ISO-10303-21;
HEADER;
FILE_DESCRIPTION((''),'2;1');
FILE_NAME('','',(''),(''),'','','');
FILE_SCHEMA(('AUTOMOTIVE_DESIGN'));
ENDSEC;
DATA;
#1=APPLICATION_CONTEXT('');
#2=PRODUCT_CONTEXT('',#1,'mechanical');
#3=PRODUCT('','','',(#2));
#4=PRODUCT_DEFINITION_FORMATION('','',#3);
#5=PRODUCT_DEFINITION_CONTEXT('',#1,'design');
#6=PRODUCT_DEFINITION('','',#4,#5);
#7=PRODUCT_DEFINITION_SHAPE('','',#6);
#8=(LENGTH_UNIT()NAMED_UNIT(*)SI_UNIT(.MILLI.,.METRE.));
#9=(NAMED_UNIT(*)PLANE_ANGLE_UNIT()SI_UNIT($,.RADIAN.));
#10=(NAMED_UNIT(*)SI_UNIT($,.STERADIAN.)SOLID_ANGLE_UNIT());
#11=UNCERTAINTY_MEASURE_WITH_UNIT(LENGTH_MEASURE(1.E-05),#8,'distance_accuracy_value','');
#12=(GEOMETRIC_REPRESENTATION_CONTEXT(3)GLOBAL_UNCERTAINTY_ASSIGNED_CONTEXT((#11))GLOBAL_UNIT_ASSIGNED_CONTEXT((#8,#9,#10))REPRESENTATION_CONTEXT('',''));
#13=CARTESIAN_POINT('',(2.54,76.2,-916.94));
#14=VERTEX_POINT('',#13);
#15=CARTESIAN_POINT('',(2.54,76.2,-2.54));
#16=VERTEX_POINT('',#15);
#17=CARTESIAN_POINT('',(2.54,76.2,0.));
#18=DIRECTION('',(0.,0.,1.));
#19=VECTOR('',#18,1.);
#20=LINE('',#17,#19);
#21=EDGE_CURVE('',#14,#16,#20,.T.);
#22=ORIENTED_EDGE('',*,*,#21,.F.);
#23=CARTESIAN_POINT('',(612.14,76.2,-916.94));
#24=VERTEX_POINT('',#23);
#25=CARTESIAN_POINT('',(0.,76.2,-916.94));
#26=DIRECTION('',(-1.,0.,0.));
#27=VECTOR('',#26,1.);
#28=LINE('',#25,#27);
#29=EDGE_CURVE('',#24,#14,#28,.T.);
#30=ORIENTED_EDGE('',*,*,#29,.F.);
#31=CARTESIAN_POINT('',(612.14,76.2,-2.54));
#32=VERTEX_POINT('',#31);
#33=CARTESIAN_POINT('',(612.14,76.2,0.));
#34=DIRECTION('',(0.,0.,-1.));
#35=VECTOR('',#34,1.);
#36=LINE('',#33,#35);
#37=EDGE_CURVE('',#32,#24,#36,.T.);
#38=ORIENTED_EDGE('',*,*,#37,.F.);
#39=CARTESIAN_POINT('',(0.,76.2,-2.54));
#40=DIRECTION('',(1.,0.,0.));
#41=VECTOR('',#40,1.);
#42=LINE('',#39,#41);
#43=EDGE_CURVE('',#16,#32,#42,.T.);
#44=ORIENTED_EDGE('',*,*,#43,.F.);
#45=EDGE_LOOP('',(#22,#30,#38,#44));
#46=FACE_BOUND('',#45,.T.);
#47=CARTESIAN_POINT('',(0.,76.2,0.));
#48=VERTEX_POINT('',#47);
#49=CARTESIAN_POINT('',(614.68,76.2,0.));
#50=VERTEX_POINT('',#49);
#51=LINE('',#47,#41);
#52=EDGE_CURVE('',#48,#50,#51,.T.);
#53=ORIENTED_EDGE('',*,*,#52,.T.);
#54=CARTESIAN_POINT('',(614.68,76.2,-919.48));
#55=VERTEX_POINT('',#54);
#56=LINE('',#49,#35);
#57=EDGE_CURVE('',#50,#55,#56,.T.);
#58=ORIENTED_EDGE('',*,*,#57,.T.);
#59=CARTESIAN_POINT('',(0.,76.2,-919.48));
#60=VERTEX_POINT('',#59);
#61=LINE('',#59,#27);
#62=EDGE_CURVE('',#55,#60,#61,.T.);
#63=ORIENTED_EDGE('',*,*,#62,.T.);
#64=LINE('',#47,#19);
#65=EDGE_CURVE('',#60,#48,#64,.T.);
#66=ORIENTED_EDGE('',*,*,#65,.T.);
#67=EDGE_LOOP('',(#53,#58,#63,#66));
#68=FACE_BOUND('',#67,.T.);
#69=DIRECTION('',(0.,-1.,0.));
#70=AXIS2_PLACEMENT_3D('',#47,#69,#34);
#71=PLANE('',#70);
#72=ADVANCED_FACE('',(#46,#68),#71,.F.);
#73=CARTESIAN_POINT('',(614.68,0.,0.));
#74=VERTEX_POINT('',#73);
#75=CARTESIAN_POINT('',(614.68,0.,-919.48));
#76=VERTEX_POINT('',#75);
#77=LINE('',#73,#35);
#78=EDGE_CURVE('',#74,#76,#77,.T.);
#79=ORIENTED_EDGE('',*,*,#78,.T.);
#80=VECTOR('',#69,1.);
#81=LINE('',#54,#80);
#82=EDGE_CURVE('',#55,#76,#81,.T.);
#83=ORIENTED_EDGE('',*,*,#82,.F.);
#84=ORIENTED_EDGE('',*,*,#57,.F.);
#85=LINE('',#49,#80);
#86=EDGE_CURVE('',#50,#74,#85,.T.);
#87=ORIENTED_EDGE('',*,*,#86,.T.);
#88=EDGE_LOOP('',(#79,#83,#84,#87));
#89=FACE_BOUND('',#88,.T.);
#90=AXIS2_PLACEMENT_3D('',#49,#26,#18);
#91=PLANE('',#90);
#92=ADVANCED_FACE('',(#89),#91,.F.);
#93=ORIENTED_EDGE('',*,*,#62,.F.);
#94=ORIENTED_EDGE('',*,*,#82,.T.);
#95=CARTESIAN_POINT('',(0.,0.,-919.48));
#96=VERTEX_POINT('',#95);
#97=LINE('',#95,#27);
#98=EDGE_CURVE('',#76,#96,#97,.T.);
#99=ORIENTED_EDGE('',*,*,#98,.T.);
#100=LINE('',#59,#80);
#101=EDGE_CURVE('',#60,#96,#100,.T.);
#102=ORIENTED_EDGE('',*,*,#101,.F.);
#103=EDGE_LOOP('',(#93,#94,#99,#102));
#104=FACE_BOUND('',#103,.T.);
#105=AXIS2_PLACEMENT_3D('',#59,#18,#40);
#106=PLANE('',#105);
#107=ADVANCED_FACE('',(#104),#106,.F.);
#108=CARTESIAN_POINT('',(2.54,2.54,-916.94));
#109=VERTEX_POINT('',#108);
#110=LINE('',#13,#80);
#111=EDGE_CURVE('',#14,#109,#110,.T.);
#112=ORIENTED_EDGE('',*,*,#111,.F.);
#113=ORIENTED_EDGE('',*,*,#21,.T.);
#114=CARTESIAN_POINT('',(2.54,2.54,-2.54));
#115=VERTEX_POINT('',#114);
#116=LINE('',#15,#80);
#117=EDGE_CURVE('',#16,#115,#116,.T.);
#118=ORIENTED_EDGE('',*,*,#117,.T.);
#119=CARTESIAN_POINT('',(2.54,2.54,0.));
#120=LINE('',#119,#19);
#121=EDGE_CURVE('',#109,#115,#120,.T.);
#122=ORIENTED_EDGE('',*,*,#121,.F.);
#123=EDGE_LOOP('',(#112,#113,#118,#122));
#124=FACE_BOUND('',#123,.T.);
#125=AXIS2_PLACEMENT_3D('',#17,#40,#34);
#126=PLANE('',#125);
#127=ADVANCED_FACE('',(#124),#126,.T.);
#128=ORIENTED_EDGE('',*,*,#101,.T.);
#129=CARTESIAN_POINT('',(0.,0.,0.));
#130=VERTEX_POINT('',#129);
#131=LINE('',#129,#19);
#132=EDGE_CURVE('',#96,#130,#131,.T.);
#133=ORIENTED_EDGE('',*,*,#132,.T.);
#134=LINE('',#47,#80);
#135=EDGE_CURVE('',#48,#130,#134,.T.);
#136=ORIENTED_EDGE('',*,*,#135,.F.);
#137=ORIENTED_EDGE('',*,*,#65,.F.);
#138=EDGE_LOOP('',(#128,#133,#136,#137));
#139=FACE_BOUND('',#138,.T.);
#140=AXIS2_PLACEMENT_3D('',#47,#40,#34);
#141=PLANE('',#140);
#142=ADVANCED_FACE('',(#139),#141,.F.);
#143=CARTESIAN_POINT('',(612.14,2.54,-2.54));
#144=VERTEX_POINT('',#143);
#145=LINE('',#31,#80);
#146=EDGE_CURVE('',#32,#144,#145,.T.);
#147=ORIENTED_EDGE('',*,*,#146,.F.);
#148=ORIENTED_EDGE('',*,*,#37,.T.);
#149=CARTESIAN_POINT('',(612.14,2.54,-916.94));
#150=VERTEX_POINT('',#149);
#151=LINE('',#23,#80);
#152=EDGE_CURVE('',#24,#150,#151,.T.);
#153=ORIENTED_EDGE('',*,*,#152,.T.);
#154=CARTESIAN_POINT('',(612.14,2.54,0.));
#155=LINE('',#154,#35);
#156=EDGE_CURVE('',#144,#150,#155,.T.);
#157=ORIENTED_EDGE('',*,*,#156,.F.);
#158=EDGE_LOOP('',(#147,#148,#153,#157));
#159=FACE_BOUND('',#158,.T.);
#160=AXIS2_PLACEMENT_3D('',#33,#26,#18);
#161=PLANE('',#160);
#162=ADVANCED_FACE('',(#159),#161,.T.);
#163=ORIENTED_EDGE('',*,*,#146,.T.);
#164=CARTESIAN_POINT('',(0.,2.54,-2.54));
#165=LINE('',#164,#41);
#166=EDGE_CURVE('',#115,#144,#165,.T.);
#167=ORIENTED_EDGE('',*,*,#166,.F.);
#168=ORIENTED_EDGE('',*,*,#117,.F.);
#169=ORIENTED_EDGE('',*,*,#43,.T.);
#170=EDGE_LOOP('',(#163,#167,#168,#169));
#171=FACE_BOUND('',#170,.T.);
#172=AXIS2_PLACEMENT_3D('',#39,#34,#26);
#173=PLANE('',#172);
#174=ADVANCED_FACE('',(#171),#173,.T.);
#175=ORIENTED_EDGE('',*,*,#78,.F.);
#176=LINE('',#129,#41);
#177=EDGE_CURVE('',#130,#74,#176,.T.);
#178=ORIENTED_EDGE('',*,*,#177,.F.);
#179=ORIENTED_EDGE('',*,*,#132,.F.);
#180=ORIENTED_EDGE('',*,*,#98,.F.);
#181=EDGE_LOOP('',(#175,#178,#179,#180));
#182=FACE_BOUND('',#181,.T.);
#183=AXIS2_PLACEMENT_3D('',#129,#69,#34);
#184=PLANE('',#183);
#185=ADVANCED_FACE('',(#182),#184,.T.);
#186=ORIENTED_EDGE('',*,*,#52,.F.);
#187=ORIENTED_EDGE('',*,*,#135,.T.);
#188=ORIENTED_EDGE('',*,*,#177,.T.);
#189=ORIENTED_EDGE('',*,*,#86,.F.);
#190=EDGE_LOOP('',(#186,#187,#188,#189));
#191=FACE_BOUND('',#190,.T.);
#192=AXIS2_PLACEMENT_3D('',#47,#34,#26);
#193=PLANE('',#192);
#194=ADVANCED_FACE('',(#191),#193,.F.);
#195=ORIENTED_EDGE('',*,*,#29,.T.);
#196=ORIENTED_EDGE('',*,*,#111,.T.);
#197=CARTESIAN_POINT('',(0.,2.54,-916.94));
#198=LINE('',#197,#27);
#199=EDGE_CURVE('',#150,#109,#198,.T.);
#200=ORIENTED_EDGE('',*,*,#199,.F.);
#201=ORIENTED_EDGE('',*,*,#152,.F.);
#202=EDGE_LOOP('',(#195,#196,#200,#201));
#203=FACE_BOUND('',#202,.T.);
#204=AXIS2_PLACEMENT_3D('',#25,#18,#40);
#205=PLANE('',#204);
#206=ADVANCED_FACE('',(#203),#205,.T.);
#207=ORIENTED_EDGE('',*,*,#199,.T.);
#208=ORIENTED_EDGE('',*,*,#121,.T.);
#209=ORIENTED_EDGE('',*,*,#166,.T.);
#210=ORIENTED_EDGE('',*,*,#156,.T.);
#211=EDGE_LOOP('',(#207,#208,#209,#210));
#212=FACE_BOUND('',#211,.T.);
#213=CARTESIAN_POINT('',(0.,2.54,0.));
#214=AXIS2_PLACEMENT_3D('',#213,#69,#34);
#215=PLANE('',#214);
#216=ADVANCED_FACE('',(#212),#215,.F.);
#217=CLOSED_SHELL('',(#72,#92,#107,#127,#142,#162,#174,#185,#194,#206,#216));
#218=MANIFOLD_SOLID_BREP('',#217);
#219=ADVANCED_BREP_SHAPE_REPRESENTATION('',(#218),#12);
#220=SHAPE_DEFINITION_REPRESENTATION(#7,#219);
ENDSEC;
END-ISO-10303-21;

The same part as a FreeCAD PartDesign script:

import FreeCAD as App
import Part
import Sketcher
Q = App.Units.Quantity


def faces_at(feature, points):
    """Names of the faces that lie closest to the given points."""
    faces = feature.Shape.Faces
    near = lambda p: min(range(len(faces)), key=lambda i: faces[i].distToShape(Part.Vertex(*p))[0])
    return sorted({f"Face{near(p) + 1}" for p in points})

doc = App.newDocument("Part")
params = doc.addObject("Spreadsheet::Sheet", "Params")
for row, (alias, value) in enumerate([
    ("sketch1_width", "24.2 in"),
    ("sketch1_height", "36.2 in"),
    ("pad1_length", "3 in"),
    ("thickness_wall", "0.1 in"),
], start=1):
    params.set(f"A{row}", alias)
    params.set(f"B{row}", "=" + value)
    params.setAlias(f"B{row}", alias)

body = doc.addObject("PartDesign::Body", "Body")

sketch1 = body.newObject("Sketcher::SketchObject", "Sketch")
sketch1.AttachmentSupport = (doc.getObject("XZ_Plane"), [""])
sketch1.MapMode = "FlatFace"
sketch1.addGeometry(Part.LineSegment(App.Vector(0, -919, 0), App.Vector(0, 0, 0)), False)
sketch1.addGeometry(Part.LineSegment(App.Vector(0, 0, 0), App.Vector(615, 0, 0)), False)
sketch1.addGeometry(Part.LineSegment(App.Vector(615, 0, 0), App.Vector(615, -919, 0)), False)
sketch1.addGeometry(Part.LineSegment(App.Vector(615, -919, 0), App.Vector(0, -919, 0)), False)
sketch1.addConstraint(Sketcher.Constraint("Coincident", 0, 2, 1, 1))
sketch1.addConstraint(Sketcher.Constraint("Coincident", 1, 2, 2, 1))
sketch1.addConstraint(Sketcher.Constraint("Coincident", 2, 2, 3, 1))
sketch1.addConstraint(Sketcher.Constraint("Coincident", 3, 2, 0, 1))
sketch1.addConstraint(Sketcher.Constraint("Vertical", 0))
sketch1.addConstraint(Sketcher.Constraint("Horizontal", 1))
sketch1.addConstraint(Sketcher.Constraint("Vertical", 2))
sketch1.addConstraint(Sketcher.Constraint("Horizontal", 3))
sketch1.addConstraint(Sketcher.Constraint("Coincident", 0, 2, -1, 1))
sketch1.addConstraint(Sketcher.Constraint("DistanceX", 1, 1, 1, 2, Q("24.2 in")))
sketch1.addConstraint(Sketcher.Constraint("DistanceY", 0, 1, 0, 2, Q("36.2 in")))
sketch1.setExpression("Constraints[9]", "Params.sketch1_width")
sketch1.setExpression("Constraints[10]", "Params.sketch1_height")
pad1 = body.newObject("PartDesign::Pad", "Pad")
pad1.Profile = sketch1
pad1.setExpression("Length", "Params.pad1_length")
pad1.Reversed = True
doc.recompute()

thickness = body.newObject("PartDesign::Thickness", "Thickness")
thickness.Base = (pad1, faces_at(pad1, [(307.34, 76.2, -459.74)]))
thickness.setExpression("Value", "Params.thickness_wall")
thickness.Reversed = True
thickness.Join = "Intersection"

doc.recompute()
